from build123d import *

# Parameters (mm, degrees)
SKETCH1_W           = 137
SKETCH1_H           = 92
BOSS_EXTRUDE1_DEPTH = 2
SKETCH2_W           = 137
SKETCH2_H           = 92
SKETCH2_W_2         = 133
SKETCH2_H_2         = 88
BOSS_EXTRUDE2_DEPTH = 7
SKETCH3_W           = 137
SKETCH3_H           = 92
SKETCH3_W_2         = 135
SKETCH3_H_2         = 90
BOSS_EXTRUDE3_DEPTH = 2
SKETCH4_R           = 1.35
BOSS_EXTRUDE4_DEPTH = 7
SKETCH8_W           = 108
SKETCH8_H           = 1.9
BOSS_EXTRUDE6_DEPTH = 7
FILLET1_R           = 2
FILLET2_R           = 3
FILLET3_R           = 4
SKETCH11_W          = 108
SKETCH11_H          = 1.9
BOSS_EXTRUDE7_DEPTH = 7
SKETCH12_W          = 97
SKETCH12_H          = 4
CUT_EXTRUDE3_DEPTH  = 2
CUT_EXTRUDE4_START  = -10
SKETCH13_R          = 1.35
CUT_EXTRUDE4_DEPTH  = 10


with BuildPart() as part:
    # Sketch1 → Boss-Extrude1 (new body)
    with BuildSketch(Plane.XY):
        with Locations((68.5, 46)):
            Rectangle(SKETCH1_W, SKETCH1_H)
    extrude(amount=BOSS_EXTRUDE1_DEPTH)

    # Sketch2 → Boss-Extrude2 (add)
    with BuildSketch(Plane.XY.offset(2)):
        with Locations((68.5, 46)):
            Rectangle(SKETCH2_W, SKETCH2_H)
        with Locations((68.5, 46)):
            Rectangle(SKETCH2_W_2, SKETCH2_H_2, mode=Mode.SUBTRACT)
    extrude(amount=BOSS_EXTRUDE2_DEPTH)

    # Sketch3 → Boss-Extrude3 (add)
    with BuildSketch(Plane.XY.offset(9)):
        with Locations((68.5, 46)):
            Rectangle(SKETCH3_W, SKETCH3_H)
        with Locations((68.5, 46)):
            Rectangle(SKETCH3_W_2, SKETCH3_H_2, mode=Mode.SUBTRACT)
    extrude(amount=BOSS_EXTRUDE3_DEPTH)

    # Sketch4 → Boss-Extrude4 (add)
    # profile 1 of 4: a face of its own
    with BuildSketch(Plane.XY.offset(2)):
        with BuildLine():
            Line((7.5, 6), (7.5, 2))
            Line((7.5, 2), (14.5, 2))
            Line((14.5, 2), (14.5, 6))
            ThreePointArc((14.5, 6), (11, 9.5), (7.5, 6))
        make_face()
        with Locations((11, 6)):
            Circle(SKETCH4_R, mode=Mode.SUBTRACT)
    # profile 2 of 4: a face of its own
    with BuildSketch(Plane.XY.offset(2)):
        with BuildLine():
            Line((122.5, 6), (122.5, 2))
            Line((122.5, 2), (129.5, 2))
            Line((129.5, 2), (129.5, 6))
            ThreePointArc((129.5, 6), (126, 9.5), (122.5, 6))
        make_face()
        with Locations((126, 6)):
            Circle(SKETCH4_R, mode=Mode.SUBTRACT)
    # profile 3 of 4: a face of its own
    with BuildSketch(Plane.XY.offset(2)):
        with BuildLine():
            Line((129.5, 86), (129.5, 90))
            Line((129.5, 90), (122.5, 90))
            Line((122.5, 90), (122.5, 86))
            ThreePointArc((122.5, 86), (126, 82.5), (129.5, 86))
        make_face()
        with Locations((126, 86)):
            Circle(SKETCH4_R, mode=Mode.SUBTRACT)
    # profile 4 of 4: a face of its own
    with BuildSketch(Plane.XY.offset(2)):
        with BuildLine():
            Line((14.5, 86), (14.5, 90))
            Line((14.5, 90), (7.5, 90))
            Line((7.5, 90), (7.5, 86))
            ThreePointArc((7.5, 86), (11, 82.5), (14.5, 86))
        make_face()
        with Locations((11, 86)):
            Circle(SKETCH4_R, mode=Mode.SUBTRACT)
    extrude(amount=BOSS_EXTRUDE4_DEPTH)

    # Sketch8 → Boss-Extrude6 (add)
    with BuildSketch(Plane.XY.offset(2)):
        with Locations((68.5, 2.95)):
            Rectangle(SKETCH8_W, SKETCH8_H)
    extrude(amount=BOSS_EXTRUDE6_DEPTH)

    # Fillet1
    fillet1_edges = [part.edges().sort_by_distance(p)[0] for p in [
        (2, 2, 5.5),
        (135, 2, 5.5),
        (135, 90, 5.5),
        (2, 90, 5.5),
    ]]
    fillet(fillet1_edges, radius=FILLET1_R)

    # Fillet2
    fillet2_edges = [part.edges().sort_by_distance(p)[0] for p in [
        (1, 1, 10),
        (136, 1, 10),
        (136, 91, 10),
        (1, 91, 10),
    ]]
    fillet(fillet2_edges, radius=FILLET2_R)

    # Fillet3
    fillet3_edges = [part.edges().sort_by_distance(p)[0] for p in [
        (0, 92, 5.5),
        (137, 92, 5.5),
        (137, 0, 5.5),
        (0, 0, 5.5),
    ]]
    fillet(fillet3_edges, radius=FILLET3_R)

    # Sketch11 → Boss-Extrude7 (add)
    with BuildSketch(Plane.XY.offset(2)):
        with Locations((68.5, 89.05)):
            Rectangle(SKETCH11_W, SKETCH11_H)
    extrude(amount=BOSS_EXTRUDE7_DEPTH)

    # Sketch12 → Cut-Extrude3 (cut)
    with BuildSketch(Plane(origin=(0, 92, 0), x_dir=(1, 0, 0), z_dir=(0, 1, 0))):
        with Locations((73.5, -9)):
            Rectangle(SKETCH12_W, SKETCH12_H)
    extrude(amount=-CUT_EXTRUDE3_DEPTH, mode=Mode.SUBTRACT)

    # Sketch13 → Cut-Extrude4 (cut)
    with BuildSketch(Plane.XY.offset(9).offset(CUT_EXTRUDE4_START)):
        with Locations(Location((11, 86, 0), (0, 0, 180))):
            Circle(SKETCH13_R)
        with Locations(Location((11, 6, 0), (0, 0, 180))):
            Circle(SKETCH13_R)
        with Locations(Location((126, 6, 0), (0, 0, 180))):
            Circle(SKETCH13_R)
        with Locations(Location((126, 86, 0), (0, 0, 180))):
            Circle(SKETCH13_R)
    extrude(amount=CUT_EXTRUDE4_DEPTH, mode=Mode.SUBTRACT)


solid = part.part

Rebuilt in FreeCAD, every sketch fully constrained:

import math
import FreeCAD as App
import Part
import Sketcher
Q = App.Units.Quantity


def edges_at(feature, points):
    """Names of the edges that pass closest to the given points."""
    edges = feature.Shape.Edges
    near = lambda p: min(range(len(edges)), key=lambda i: edges[i].distToShape(Part.Vertex(*p))[0])
    return sorted({f"Edge{near(p) + 1}" for p in points})


def add_polygon(sketch, points):
    """Adds a closed chain of lines whose ends are joined by coincident constraints."""
    first, n = sketch.GeometryCount, len(points)
    for a, b in zip(points, points[1:] + points[:1]):
        sketch.addGeometry(Part.LineSegment(App.Vector(*a, 0), App.Vector(*b, 0)), False)
    for i in range(n):
        sketch.addConstraint(Sketcher.Constraint("Coincident", first + i, 2, first + (i + 1) % n, 1))

doc = App.newDocument("Part")
body = doc.addObject("PartDesign::Body", "Body")

sketch1 = doc.addObject("Sketcher::SketchObject", "Sketch")
body.addObject(sketch1)
sketch1.AttachmentSupport = (doc.XY_Plane, [""])
sketch1.MapMode = "FlatFace"
add_polygon(sketch1, [(0, 92), (0, 0), (137, 0), (137, 92)])
sketch1.addConstraint([
    Sketcher.Constraint("Vertical", 0),
    Sketcher.Constraint("Horizontal", 1),
    Sketcher.Constraint("Vertical", 2),
    Sketcher.Constraint("Horizontal", 3),
    Sketcher.Constraint("Coincident", 0, 2, -1, 1),
    Sketcher.Constraint("DistanceX", 1, 1, 1, 2, Q("137 mm")),
    Sketcher.Constraint("DistanceY", 0, 2, 0, 1, Q("92 mm")),
])
pad1 = doc.addObject("PartDesign::Pad", "Pad")
body.addObject(pad1)
pad1.Profile = sketch1
pad1.Length = 2

sketch2 = doc.addObject("Sketcher::SketchObject", "Sketch001")
body.addObject(sketch2)
sketch2.AttachmentSupport = (doc.XY_Plane, [""])
sketch2.MapMode = "FlatFace"
sketch2.AttachmentOffset = App.Placement(App.Vector(0, 0, 2), App.Rotation())
add_polygon(sketch2, [(0, 92), (0, 0), (137, 0), (137, 92)])
add_polygon(sketch2, [(135, 2), (2, 2), (2, 90), (135, 90)])
sketch2.addConstraint([
    Sketcher.Constraint("Vertical", 0),
    Sketcher.Constraint("Horizontal", 1),
    Sketcher.Constraint("Vertical", 2),
    Sketcher.Constraint("Horizontal", 3),
    Sketcher.Constraint("Horizontal", 4),
    Sketcher.Constraint("Vertical", 5),
    Sketcher.Constraint("Horizontal", 6),
    Sketcher.Constraint("Vertical", 7),
    Sketcher.Constraint("Coincident", 0, 2, -1, 1),
    Sketcher.Constraint("DistanceX", 1, 1, 1, 2, Q("137 mm")),
    Sketcher.Constraint("DistanceX", 4, 2, 4, 1, Q("133 mm")),
    Sketcher.Constraint("DistanceY", 0, 2, 0, 1, Q("92 mm")),
    Sketcher.Constraint("DistanceY", 5, 1, 5, 2, Q("88 mm")),
    Sketcher.Constraint("DistanceX", -1, 1, 4, 2, Q("2 mm")),
    Sketcher.Constraint("DistanceY", -1, 1, 4, 2, Q("2 mm")),
])
pad2 = doc.addObject("PartDesign::Pad", "Pad001")
body.addObject(pad2)
pad2.Profile = sketch2
pad2.Length = 7

sketch3 = doc.addObject("Sketcher::SketchObject", "Sketch002")
body.addObject(sketch3)
sketch3.AttachmentSupport = (doc.XY_Plane, [""])
sketch3.MapMode = "FlatFace"
sketch3.AttachmentOffset = App.Placement(App.Vector(0, 0, 9), App.Rotation())
add_polygon(sketch3, [(0, 92), (0, 0), (137, 0), (137, 92)])
add_polygon(sketch3, [(136, 1), (1, 1), (1, 91), (136, 91)])
sketch3.addConstraint([
    Sketcher.Constraint("Vertical", 0),
    Sketcher.Constraint("Horizontal", 1),
    Sketcher.Constraint("Vertical", 2),
    Sketcher.Constraint("Horizontal", 3),
    Sketcher.Constraint("Horizontal", 4),
    Sketcher.Constraint("Vertical", 5),
    Sketcher.Constraint("Horizontal", 6),
    Sketcher.Constraint("Vertical", 7),
    Sketcher.Constraint("Coincident", 0, 2, -1, 1),
    Sketcher.Constraint("DistanceX", 1, 1, 1, 2, Q("137 mm")),
    Sketcher.Constraint("DistanceX", 4, 2, 4, 1, Q("135 mm")),
    Sketcher.Constraint("DistanceY", 0, 2, 0, 1, Q("92 mm")),
    Sketcher.Constraint("DistanceY", 5, 1, 5, 2, Q("90 mm")),
    Sketcher.Constraint("DistanceX", -1, 1, 4, 2, Q("1 mm")),
    Sketcher.Constraint("DistanceY", -1, 1, 4, 2, Q("1 mm")),
])
pad3 = doc.addObject("PartDesign::Pad", "Pad002")
body.addObject(pad3)
pad3.Profile = sketch3
pad3.Length = 2

sketch4 = doc.addObject("Sketcher::SketchObject", "Sketch003")
body.addObject(sketch4)
sketch4.AttachmentSupport = (doc.XY_Plane, [""])
sketch4.MapMode = "FlatFace"
sketch4.AttachmentOffset = App.Placement(App.Vector(0, 0, 2), App.Rotation())
sketch4.addGeometry([
    Part.LineSegment(App.Vector(7.5, 6, 0), App.Vector(7.5, 2, 0)),
    Part.LineSegment(App.Vector(7.5, 2, 0), App.Vector(14.5, 2, 0)),
    Part.LineSegment(App.Vector(14.5, 2, 0), App.Vector(14.5, 6, 0)),
    Part.ArcOfCircle(Part.Circle(App.Vector(11, 6, 0), App.Vector(0, 0, 1), 3.5), math.radians(0), math.radians(180)),
    Part.Circle(App.Vector(11, 6, 0), App.Vector(0, 0, 1), 1.4),
    Part.LineSegment(App.Vector(122.5, 6, 0), App.Vector(122.5, 2, 0)),
    Part.LineSegment(App.Vector(122.5, 2, 0), App.Vector(129.5, 2, 0)),
    Part.LineSegment(App.Vector(129.5, 2, 0), App.Vector(129.5, 6, 0)),
    Part.ArcOfCircle(Part.Circle(App.Vector(126, 6, 0), App.Vector(0, 0, 1), 3.5), math.radians(0), math.radians(180)),
    Part.Circle(App.Vector(126, 6, 0), App.Vector(0, 0, 1), 1.4),
    Part.LineSegment(App.Vector(129.5, 86, 0), App.Vector(129.5, 90, 0)),
    Part.LineSegment(App.Vector(129.5, 90, 0), App.Vector(122.5, 90, 0)),
    Part.LineSegment(App.Vector(122.5, 90, 0), App.Vector(122.5, 86, 0)),
    Part.ArcOfCircle(Part.Circle(App.Vector(126, 86, 0), App.Vector(0, 0, 1), 3.5), math.radians(180), math.radians(360)),
    Part.Circle(App.Vector(126, 86, 0), App.Vector(0, 0, 1), 1.4),
    Part.LineSegment(App.Vector(14.5, 86, 0), App.Vector(14.5, 90, 0)),
    Part.LineSegment(App.Vector(14.5, 90, 0), App.Vector(7.5, 90, 0)),
    Part.LineSegment(App.Vector(7.5, 90, 0), App.Vector(7.5, 86, 0)),
    Part.ArcOfCircle(Part.Circle(App.Vector(11, 86, 0), App.Vector(0, 0, 1), 3.5), math.radians(180), math.radians(360)),
    Part.Circle(App.Vector(11, 86, 0), App.Vector(0, 0, 1), 1.4),
], False)
sketch4.addConstraint([
    Sketcher.Constraint("Coincident", 0, 2, 1, 1),
    Sketcher.Constraint("Coincident", 1, 2, 2, 1),
    Sketcher.Constraint("Tangent", 2, 2, 3, 1),
    Sketcher.Constraint("Tangent", 3, 2, 0, 1),
    Sketcher.Constraint("Coincident", 5, 2, 6, 1),
    Sketcher.Constraint("Coincident", 6, 2, 7, 1),
    Sketcher.Constraint("Tangent", 7, 2, 8, 1),
    Sketcher.Constraint("Tangent", 8, 2, 5, 1),
    Sketcher.Constraint("Coincident", 10, 2, 11, 1),
    Sketcher.Constraint("Coincident", 11, 2, 12, 1),
    Sketcher.Constraint("Tangent", 12, 2, 13, 1),
    Sketcher.Constraint("Tangent", 13, 2, 10, 1),
    Sketcher.Constraint("Coincident", 15, 2, 16, 1),
    Sketcher.Constraint("Coincident", 16, 2, 17, 1),
    Sketcher.Constraint("Tangent", 17, 2, 18, 1),
    Sketcher.Constraint("Tangent", 18, 2, 15, 1),
    Sketcher.Constraint("Vertical", 0),
    Sketcher.Constraint("Horizontal", 1),
    Sketcher.Constraint("Vertical", 2),
    Sketcher.Constraint("Vertical", 5),
    Sketcher.Constraint("Horizontal", 6),
    Sketcher.Constraint("Vertical", 7),
    Sketcher.Constraint("Vertical", 10),
    Sketcher.Constraint("Horizontal", 11),
    Sketcher.Constraint("Vertical", 12),
    Sketcher.Constraint("Vertical", 15),
    Sketcher.Constraint("Horizontal", 16),
    Sketcher.Constraint("Vertical", 17),
    Sketcher.Constraint("Coincident", 4, 3, 3, 3),
    Sketcher.Constraint("Coincident", 9, 3, 8, 3),
    Sketcher.Constraint("Coincident", 14, 3, 13, 3),
    Sketcher.Constraint("Coincident", 19, 3, 18, 3),
    Sketcher.Constraint("Equal", 3, 8),
    Sketcher.Constraint("Equal", 4, 9),
    Sketcher.Constraint("Equal", 8, 13),
    Sketcher.Constraint("Equal", 9, 14),
    Sketcher.Constraint("Equal", 13, 18),
    Sketcher.Constraint("Equal", 14, 19),
    Sketcher.Constraint("Horizontal", 4, 3, 8, 3),
    Sketcher.Constraint("Horizontal", 14, 3, 18, 3),
    Sketcher.Constraint("Horizontal", 1, 2, 5, 2),
    Sketcher.Constraint("Horizontal", 11, 2, 15, 2),
    Sketcher.Constraint("Vertical", 9, 3, 13, 3),
    Sketcher.Constraint("Vertical", 4, 3, 18, 3),
    Sketcher.Constraint("Equal", 7, 10),
    Sketcher.Constraint("Diameter", 4, Q("2.7 mm")),
    Sketcher.Constraint("Radius", 3, Q("3.5 mm")),
    Sketcher.Constraint("DistanceY", 0, 2, 0, 1, Q("4 mm")),
    Sketcher.Constraint("DistanceX", -1, 1, 3, 3, Q("11 mm")),
    Sketcher.Constraint("DistanceY", -1, 1, 3, 3, Q("6 mm")),
    Sketcher.Constraint("DistanceX", -1, 1, 8, 3, Q("126 mm")),
    Sketcher.Constraint("DistanceY", -1, 1, 13, 3, Q("86 mm")),
])
pad4 = doc.addObject("PartDesign::Pad", "Pad003")
body.addObject(pad4)
pad4.Profile = sketch4
pad4.Length = 7

sketch5 = doc.addObject("Sketcher::SketchObject", "Sketch004")
body.addObject(sketch5)
sketch5.AttachmentSupport = (doc.XY_Plane, [""])
sketch5.MapMode = "FlatFace"
sketch5.AttachmentOffset = App.Placement(App.Vector(0, 0, 2), App.Rotation())
add_polygon(sketch5, [(14.5, 3.9), (14.5, 2), (122.5, 2), (122.5, 3.9)])
sketch5.addConstraint([
    Sketcher.Constraint("Vertical", 0),
    Sketcher.Constraint("Horizontal", 1),
    Sketcher.Constraint("Vertical", 2),
    Sketcher.Constraint("Horizontal", 3),
    Sketcher.Constraint("DistanceX", 1, 1, 1, 2, Q("108 mm")),
    Sketcher.Constraint("DistanceY", 0, 2, 0, 1, Q("1.9 mm")),
    Sketcher.Constraint("DistanceY", -1, 1, 0, 2, Q("2 mm")),
    Sketcher.Constraint("DistanceX", -1, 1, 0, 2, Q("14.5 mm")),
])
pad5 = doc.addObject("PartDesign::Pad", "Pad004")
body.addObject(pad5)
pad5.Profile = sketch5
pad5.Length = 7
doc.recompute()

fillet = doc.addObject("PartDesign::Fillet", "Fillet")
body.addObject(fillet)
fillet.Base = (pad5, edges_at(pad5, [
    (2, 2, 5.5),
    (135, 2, 5.5),
    (135, 90, 5.5),
    (2, 90, 5.5),
]))
fillet.Radius = 2
doc.recompute()

fillet2 = doc.addObject("PartDesign::Fillet", "Fillet001")
body.addObject(fillet2)
fillet2.Base = (fillet, edges_at(fillet, [
    (1, 1, 10),
    (136, 1, 10),
    (136, 91, 10),
    (1, 91, 10),
]))
fillet2.Radius = 3
doc.recompute()

fillet3 = doc.addObject("PartDesign::Fillet", "Fillet002")
body.addObject(fillet3)
fillet3.Base = (fillet2, edges_at(fillet2, [
    (0, 92, 5.5),
    (137, 92, 5.5),
    (137, 0, 5.5),
    (0, 0, 5.5),
]))
fillet3.Radius = 4

sketch6 = doc.addObject("Sketcher::SketchObject", "Sketch005")
body.addObject(sketch6)
sketch6.AttachmentSupport = (doc.XY_Plane, [""])
sketch6.MapMode = "FlatFace"
sketch6.AttachmentOffset = App.Placement(App.Vector(0, 0, 2), App.Rotation())
add_polygon(sketch6, [(14.5, 90), (14.5, 88.1), (122.5, 88.1), (122.5, 90)])
sketch6.addConstraint([
    Sketcher.Constraint("Vertical", 0),
    Sketcher.Constraint("Horizontal", 1),
    Sketcher.Constraint("Vertical", 2),
    Sketcher.Constraint("Horizontal", 3),
    Sketcher.Constraint("DistanceX", 1, 1, 1, 2, Q("108 mm")),
    Sketcher.Constraint("DistanceY", 0, 2, 0, 1, Q("1.9 mm")),
    Sketcher.Constraint("DistanceY", -1, 1, 2, 2, Q("90 mm")),
    Sketcher.Constraint("DistanceX", -1, 1, 0, 2, Q("14.5 mm")),
])
pad6 = doc.addObject("PartDesign::Pad", "Pad005")
body.addObject(pad6)
pad6.Profile = sketch6
pad6.Length = 7

sketch7 = doc.addObject("Sketcher::SketchObject", "Sketch006")
body.addObject(sketch7)
sketch7.AttachmentSupport = (doc.XZ_Plane, [""])
sketch7.MapMode = "FlatFace"
sketch7.AttachmentOffset = App.Placement(App.Vector(0, 0, -92), App.Rotation())
add_polygon(sketch7, [(25, 7), (25, 11), (122, 11), (122, 7)])
sketch7.addConstraint([
    Sketcher.Constraint("Vertical", 0),
    Sketcher.Constraint("Horizontal", 1),
    Sketcher.Constraint("Vertical", 2),
    Sketcher.Constraint("Horizontal", 3),
    Sketcher.Constraint("DistanceX", 1, 1, 1, 2, Q("97 mm")),
    Sketcher.Constraint("DistanceY", 0, 1, 0, 2, Q("4 mm")),
    Sketcher.Constraint("DistanceX", -1, 1, 0, 2, Q("25 mm")),
    Sketcher.Constraint("DistanceY", -1, 1, 0, 2, Q("11 mm")),
])
pocket1 = doc.addObject("PartDesign::Pocket", "Pocket")
body.addObject(pocket1)
pocket1.Profile = sketch7
pocket1.Length = 2
pocket1.Reversed = True

sketch8 = doc.addObject("Sketcher::SketchObject", "Sketch007")
body.addObject(sketch8)
sketch8.AttachmentSupport = (doc.XY_Plane, [""])
sketch8.MapMode = "FlatFace"
sketch8.AttachmentOffset = App.Placement(App.Vector(0, 0, -1), App.Rotation())
sketch8.addGeometry([
    Part.Circle(App.Vector(11, 86, 0), App.Vector(0, 0, 1), 1.4),
    Part.Circle(App.Vector(11, 6, 0), App.Vector(0, 0, 1), 1.4),
    Part.Circle(App.Vector(126, 6, 0), App.Vector(0, 0, 1), 1.4),
    Part.Circle(App.Vector(126, 86, 0), App.Vector(0, 0, 1), 1.4),
], False)
sketch8.addConstraint([
    Sketcher.Constraint("Equal", 0, 1),
    Sketcher.Constraint("Equal", 1, 2),
    Sketcher.Constraint("Equal", 2, 3),
    Sketcher.Constraint("Horizontal", 1, 3, 2, 3),
    Sketcher.Constraint("Horizontal", 0, 3, 3, 3),
    Sketcher.Constraint("Vertical", 0, 3, 1, 3),
    Sketcher.Constraint("Vertical", 2, 3, 3, 3),
    Sketcher.Constraint("Diameter", 0, Q("2.7 mm")),
    Sketcher.Constraint("DistanceX", -1, 1, 0, 3, Q("11 mm")),
    Sketcher.Constraint("DistanceY", -1, 1, 0, 3, Q("86 mm")),
    Sketcher.Constraint("DistanceY", -1, 1, 1, 3, Q("6 mm")),
    Sketcher.Constraint("DistanceX", -1, 1, 2, 3, Q("126 mm")),
])
pocket2 = doc.addObject("PartDesign::Pocket", "Pocket001")
body.addObject(pocket2)
pocket2.Profile = sketch8
pocket2.Length = 10
pocket2.Reversed = True

doc.recompute()
